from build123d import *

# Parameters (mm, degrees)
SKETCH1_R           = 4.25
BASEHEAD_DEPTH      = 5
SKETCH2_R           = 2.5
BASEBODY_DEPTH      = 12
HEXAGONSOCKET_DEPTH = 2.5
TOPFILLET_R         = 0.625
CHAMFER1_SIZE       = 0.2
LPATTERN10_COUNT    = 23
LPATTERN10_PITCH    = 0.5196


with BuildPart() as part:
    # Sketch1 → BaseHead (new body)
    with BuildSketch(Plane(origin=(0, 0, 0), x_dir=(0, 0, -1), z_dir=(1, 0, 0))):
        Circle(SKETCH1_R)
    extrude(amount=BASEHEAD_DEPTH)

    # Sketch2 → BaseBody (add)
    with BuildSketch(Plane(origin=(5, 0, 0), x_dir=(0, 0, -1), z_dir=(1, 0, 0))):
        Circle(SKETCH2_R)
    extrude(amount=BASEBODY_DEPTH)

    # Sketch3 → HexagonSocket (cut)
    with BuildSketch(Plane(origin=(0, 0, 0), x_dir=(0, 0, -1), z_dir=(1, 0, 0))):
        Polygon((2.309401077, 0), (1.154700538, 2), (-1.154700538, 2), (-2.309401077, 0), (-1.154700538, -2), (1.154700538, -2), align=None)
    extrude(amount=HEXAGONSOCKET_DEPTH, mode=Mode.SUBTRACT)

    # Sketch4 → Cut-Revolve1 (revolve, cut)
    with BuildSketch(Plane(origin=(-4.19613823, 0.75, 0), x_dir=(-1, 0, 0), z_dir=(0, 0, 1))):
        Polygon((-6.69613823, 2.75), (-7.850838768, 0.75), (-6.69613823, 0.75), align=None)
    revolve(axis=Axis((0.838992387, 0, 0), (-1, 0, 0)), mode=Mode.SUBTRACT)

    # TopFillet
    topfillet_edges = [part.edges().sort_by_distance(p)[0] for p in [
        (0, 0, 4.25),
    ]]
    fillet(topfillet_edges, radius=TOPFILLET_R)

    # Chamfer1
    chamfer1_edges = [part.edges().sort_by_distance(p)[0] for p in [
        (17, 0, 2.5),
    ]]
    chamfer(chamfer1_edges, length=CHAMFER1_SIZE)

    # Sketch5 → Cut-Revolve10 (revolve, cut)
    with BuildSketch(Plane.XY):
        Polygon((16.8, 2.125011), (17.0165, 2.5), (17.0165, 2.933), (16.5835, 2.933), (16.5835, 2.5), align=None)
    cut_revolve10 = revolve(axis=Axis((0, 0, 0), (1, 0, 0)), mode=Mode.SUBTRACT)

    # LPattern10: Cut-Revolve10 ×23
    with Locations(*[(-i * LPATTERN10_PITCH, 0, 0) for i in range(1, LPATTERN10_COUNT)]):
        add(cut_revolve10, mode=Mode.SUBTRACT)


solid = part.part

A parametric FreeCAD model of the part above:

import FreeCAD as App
import Part
import Sketcher
from FreeCAD import Vector
Q = App.Units.Quantity


def edges_at(feature, points):
    """Names of the edges that pass closest to the given points."""
    edges = feature.Shape.Edges
    near = lambda p: min(range(len(edges)), key=lambda i: edges[i].distToShape(Part.Vertex(*p))[0])
    return sorted({f"Edge{near(p) + 1}" for p in points})

doc = App.newDocument("Part")
body = doc.addObject("PartDesign::Body", "Body")

sketch1 = doc.addObject("Sketcher::SketchObject", "Sketch")
body.addObject(sketch1)
sketch1.AttachmentSupport = (doc.YZ_Plane, [""])
sketch1.MapMode = "FlatFace"
sketch1.addGeometry(Part.Circle(Vector(0, 0, 0), Vector(0, 0, 1), 4.2), False)
sketch1.addConstraint(Sketcher.Constraint("Coincident", 0, 3, -1, 1))
sketch1.addConstraint(Sketcher.Constraint("Diameter", 0, 8.5))
pad1 = doc.addObject("PartDesign::Pad", "Pad")
body.addObject(pad1)
pad1.Profile = sketch1
pad1.Length = 5

sketch2 = doc.addObject("Sketcher::SketchObject", "Sketch001")
body.addObject(sketch2)
sketch2.AttachmentSupport = (doc.YZ_Plane, [""])
sketch2.MapMode = "FlatFace"
sketch2.AttachmentOffset = App.Placement(Vector(0, 0, 5), App.Rotation())
sketch2.addGeometry(Part.Circle(Vector(0, 0, 0), Vector(0, 0, 1), 2.5), False)
sketch2.addConstraint(Sketcher.Constraint("Coincident", 0, 3, -1, 1))
sketch2.addConstraint(Sketcher.Constraint("Diameter", 0, 5.0))
pad2 = doc.addObject("PartDesign::Pad", "Pad001")
body.addObject(pad2)
pad2.Profile = sketch2
pad2.Length = 12

sketch3 = doc.addObject("Sketcher::SketchObject", "Sketch002")
body.addObject(sketch3)
sketch3.AttachmentSupport = (doc.YZ_Plane, [""])
sketch3.MapMode = "FlatFace"
sketch3.addGeometry(Part.LineSegment(Vector(0, -2.3, 0), Vector(2, -1.2, 0)), False)
sketch3.addGeometry(Part.LineSegment(Vector(2, -1.2, 0), Vector(2, 1.2, 0)), False)
sketch3.addGeometry(Part.LineSegment(Vector(2, 1.2, 0), Vector(0, 2.3, 0)), False)
sketch3.addGeometry(Part.LineSegment(Vector(0, 2.3, 0), Vector(-2, 1.2, 0)), False)
sketch3.addGeometry(Part.LineSegment(Vector(-2, 1.2, 0), Vector(-2, -1.2, 0)), False)
sketch3.addGeometry(Part.LineSegment(Vector(-2, -1.2, 0), Vector(0, -2.3, 0)), False)
sketch3.addConstraint(Sketcher.Constraint("Coincident", 0, 2, 1, 1))
sketch3.addConstraint(Sketcher.Constraint("Coincident", 1, 2, 2, 1))
sketch3.addConstraint(Sketcher.Constraint("Coincident", 2, 2, 3, 1))
sketch3.addConstraint(Sketcher.Constraint("Coincident", 3, 2, 4, 1))
sketch3.addConstraint(Sketcher.Constraint("Coincident", 4, 2, 5, 1))
sketch3.addConstraint(Sketcher.Constraint("Coincident", 5, 2, 0, 1))
sketch3.addConstraint(Sketcher.Constraint("Vertical", 1))
sketch3.addConstraint(Sketcher.Constraint("Vertical", 4))
sketch3.addConstraint(Sketcher.Constraint("Symmetric", 0, 2, 3, 2, -1, 1))
sketch3.addConstraint(Sketcher.Constraint("Symmetric", 2, 2, 5, 2, -1, 1))
sketch3.addConstraint(Sketcher.Constraint("PointOnObject", 2, 2, -2))
sketch3.addConstraint(Sketcher.Constraint("Parallel", 2, 5))
sketch3.addConstraint(Sketcher.Constraint("Horizontal", 1, 2, 3, 2))
sketch3.addConstraint(Sketcher.Constraint("Angle", 0, Q("30 deg")))
sketch3.addConstraint(Sketcher.Constraint("DistanceX", -1, 1, 0, 2, 2.0))
sketch3.addConstraint(Sketcher.Constraint("DistanceY", 1, 1, 1, 2, 2.309401))
pocket1 = doc.addObject("PartDesign::Pocket", "Pocket")
body.addObject(pocket1)
pocket1.Profile = sketch3
pocket1.Length = 2.5
pocket1.Reversed = True

sketch4 = doc.addObject("Sketcher::SketchObject", "Sketch003")
body.addObject(sketch4)
sketch4.AttachmentSupport = (doc.XY_Plane, [""])
sketch4.MapMode = "FlatFace"
sketch4.addGeometry(Part.LineSegment(Vector(2.5, -2, 0), Vector(3.7, 0, 0)), False)
sketch4.addGeometry(Part.LineSegment(Vector(3.7, 0, 0), Vector(2.5, 0, 0)), False)
sketch4.addGeometry(Part.LineSegment(Vector(2.5, 0, 0), Vector(2.5, -2, 0)), False)
sketch4.addConstraint(Sketcher.Constraint("Coincident", 0, 2, 1, 1))
sketch4.addConstraint(Sketcher.Constraint("Coincident", 1, 2, 2, 1))
sketch4.addConstraint(Sketcher.Constraint("Coincident", 2, 2, 0, 1))
sketch4.addConstraint(Sketcher.Constraint("Horizontal", 1))
sketch4.addConstraint(Sketcher.Constraint("Vertical", 2))
sketch4.addConstraint(Sketcher.Constraint("PointOnObject", 0, 2, -1))
sketch4.addConstraint(Sketcher.Constraint("DistanceY", 2, 2, 2, 1, 2.0))
sketch4.addConstraint(Sketcher.Constraint("Angle", 0, Q("60 deg")))
sketch4.addConstraint(Sketcher.Constraint("DistanceX", -1, 1, 1, 2, 2.5))
groove = doc.addObject("PartDesign::Groove", "Groove")
body.addObject(groove)
groove.Profile = sketch4
groove.ReferenceAxis = (sketch4, ["H_Axis"])
groove.Angle = 360
doc.recompute()

fillet = doc.addObject("PartDesign::Fillet", "Fillet")
body.addObject(fillet)
fillet.Base = (groove, edges_at(groove, [(0, 0, 4.25)]))
fillet.Radius = 0.625
doc.recompute()

chamfer = doc.addObject("PartDesign::Chamfer", "Chamfer")
body.addObject(chamfer)
chamfer.Base = (fillet, edges_at(fillet, [(17, 0, 2.5)]))
chamfer.Size = 0.2

sketch5 = doc.addObject("Sketcher::SketchObject", "Sketch004")
body.addObject(sketch5)
sketch5.AttachmentSupport = (doc.XY_Plane, [""])
sketch5.MapMode = "FlatFace"
sketch5.addGeometry(Part.LineSegment(Vector(16.8, 2.13, 0), Vector(17.02, 2.5, 0)), False)
sketch5.addGeometry(Part.LineSegment(Vector(17.02, 2.5, 0), Vector(17.02, 2.93, 0)), False)
sketch5.addGeometry(Part.LineSegment(Vector(17.02, 2.93, 0), Vector(16.58, 2.93, 0)), False)
sketch5.addGeometry(Part.LineSegment(Vector(16.58, 2.93, 0), Vector(16.58, 2.5, 0)), False)
sketch5.addGeometry(Part.LineSegment(Vector(16.58, 2.5, 0), Vector(16.8, 2.13, 0)), False)
sketch5.addConstraint(Sketcher.Constraint("Coincident", 0, 2, 1, 1))
sketch5.addConstraint(Sketcher.Constraint("Coincident", 1, 2, 2, 1))
sketch5.addConstraint(Sketcher.Constraint("Coincident", 2, 2, 3, 1))
sketch5.addConstraint(Sketcher.Constraint("Coincident", 3, 2, 4, 1))
sketch5.addConstraint(Sketcher.Constraint("Coincident", 4, 2, 0, 1))
sketch5.addConstraint(Sketcher.Constraint("Vertical", 1))
sketch5.addConstraint(Sketcher.Constraint("Horizontal", 2))
sketch5.addConstraint(Sketcher.Constraint("Vertical", 3))
sketch5.addConstraint(Sketcher.Constraint("Horizontal", 0, 2, 3, 2))
sketch5.addConstraint(Sketcher.Constraint("Equal", 2, 1))
sketch5.addConstraint(Sketcher.Constraint("Equal", 0, 4))
sketch5.addConstraint(Sketcher.Constraint("Angle", 0, Q("60 deg")))
sketch5.addConstraint(Sketcher.Constraint("DistanceY", -1, 1, 0, 2, 2.5))
sketch5.addConstraint(Sketcher.Constraint("DistanceX", -1, 1, 4, 2, 16.8))
sketch5.addConstraint(Sketcher.Constraint("DistanceX", 2, 2, 2, 1, 0.433))
groove2 = doc.addObject("PartDesign::Groove", "Groove001")
body.addObject(groove2)
groove2.Profile = sketch5
groove2.ReferenceAxis = (sketch5, ["H_Axis"])
groove2.Angle = 360
doc.recompute()

linearpattern = doc.addObject("PartDesign::LinearPattern", "LinearPattern")
body.addObject(linearpattern)
linearpattern.Originals = [groove2]
linearpattern.Direction = (doc.X_Axis, [""])
linearpattern.Mode = "offset"
linearpattern.Offset = 0.5196
linearpattern.Occurrences = 23
linearpattern.Reversed = True
body.Tip = linearpattern

doc.recompute()
